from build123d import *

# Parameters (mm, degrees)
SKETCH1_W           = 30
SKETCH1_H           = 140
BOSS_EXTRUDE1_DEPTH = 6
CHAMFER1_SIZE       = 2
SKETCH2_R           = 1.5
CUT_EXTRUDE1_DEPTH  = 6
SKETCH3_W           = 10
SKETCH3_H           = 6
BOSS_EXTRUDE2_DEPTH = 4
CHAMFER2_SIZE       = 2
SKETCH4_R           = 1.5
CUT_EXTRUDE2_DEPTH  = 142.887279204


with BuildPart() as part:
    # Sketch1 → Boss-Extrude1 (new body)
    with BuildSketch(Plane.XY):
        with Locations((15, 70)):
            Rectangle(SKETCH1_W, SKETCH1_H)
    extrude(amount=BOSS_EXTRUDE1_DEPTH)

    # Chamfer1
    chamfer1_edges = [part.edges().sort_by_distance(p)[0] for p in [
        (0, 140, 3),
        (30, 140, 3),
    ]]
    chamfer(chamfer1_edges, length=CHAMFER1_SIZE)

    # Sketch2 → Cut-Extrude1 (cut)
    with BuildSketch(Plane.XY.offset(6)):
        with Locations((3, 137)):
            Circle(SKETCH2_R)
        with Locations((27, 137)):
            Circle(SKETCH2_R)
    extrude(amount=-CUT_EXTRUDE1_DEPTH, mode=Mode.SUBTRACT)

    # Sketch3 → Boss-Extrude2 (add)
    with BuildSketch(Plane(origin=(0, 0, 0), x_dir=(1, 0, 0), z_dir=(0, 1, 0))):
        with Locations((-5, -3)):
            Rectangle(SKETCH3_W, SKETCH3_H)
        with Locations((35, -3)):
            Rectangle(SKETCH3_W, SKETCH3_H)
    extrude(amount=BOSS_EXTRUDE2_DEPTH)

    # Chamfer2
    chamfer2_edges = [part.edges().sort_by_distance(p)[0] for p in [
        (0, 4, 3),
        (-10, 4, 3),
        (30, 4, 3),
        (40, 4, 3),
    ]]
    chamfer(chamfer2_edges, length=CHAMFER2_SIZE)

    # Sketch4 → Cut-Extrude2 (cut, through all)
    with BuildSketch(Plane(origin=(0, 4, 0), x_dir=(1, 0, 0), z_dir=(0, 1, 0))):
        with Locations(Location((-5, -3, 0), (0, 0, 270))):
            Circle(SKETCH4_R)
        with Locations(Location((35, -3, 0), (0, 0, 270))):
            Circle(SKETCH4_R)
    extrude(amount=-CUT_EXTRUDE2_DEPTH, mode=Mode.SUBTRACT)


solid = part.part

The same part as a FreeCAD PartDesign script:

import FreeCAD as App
import Part
import Sketcher

V = App.Vector
Q = App.Units.Quantity


def edges_at(feature, points):
    """Names of the edges that pass closest to the given points."""
    edges = feature.Shape.Edges
    near = lambda p: min(range(len(edges)), key=lambda i: edges[i].distToShape(Part.Vertex(*p))[0])
    return sorted({f"Edge{near(p) + 1}" for p in points})


def add_polygon(sketch, points):
    """Adds a closed chain of lines whose ends are joined by coincident constraints."""
    first, n = sketch.GeometryCount, len(points)
    for a, b in zip(points, points[1:] + points[:1]):
        sketch.addGeometry(Part.LineSegment(App.Vector(*a, 0), App.Vector(*b, 0)), False)
    for i in range(n):
        sketch.addConstraint(Sketcher.Constraint("Coincident", first + i, 2, first + (i + 1) % n, 1))

doc = App.newDocument("Part")
body = doc.addObject("PartDesign::Body", "Body")

# Sketch on XY plane
sketch1 = doc.addObject("Sketcher::SketchObject", "Sketch")
body.addObject(sketch1)
sketch1.AttachmentSupport = (doc.XY_Plane, [""])
sketch1.MapMode = "FlatFace"
add_polygon(sketch1, [(0, 140), (0, 0), (30, 0), (30, 140)])  # lines 0-3
sketch1.addConstraint(Sketcher.Constraint("Vertical", 0))
sketch1.addConstraint(Sketcher.Constraint("Horizontal", 1))
sketch1.addConstraint(Sketcher.Constraint("Vertical", 2))
sketch1.addConstraint(Sketcher.Constraint("Horizontal", 3))
sketch1.addConstraint(Sketcher.Constraint("Coincident", 0, 2, -1, 1))
sketch1.addConstraint(Sketcher.Constraint("DistanceX", 1, 1, 1, 2, Q("30 mm")))
sketch1.addConstraint(Sketcher.Constraint("DistanceY", 0, 2, 0, 1, Q("140 mm")))
pad1 = doc.addObject("PartDesign::Pad", "Pad")
body.addObject(pad1)
pad1.Profile = sketch1
pad1.Length = 6
doc.recompute()

chamfer = doc.addObject("PartDesign::Chamfer", "Chamfer")
body.addObject(chamfer)
chamfer.Base = (pad1, edges_at(pad1, [(0, 140, 3), (30, 140, 3)]))
chamfer.Size = 2

# Sketch on XY plane
sketch2 = doc.addObject("Sketcher::SketchObject", "Sketch001")
body.addObject(sketch2)
sketch2.AttachmentSupport = (doc.XY_Plane, [""])
sketch2.MapMode = "FlatFace"
sketch2.AttachmentOffset = App.Placement(V(0, 0, 6), App.Rotation())
sketch2.addGeometry(Part.Circle(V(3, 137, 0), V(0, 0, 1), 1.5), False)
sketch2.addGeometry(Part.Circle(V(27, 137, 0), V(0, 0, 1), 1.5), False)
sketch2.addConstraint(Sketcher.Constraint("Equal", 0, 1))
sketch2.addConstraint(Sketcher.Constraint("Horizontal", 0, 3, 1, 3))
sketch2.addConstraint(Sketcher.Constraint("Diameter", 0, Q("3 mm")))
sketch2.addConstraint(Sketcher.Constraint("DistanceX", -1, 1, 0, 3, Q("3 mm")))
sketch2.addConstraint(Sketcher.Constraint("DistanceY", -1, 1, 0, 3, Q("137 mm")))
sketch2.addConstraint(Sketcher.Constraint("DistanceX", -1, 1, 1, 3, Q("27 mm")))
pocket1 = doc.addObject("PartDesign::Pocket", "Pocket")
body.addObject(pocket1)
pocket1.Profile = sketch2
pocket1.Length = 6

# Sketch on XZ plane
sketch3 = doc.addObject("Sketcher::SketchObject", "Sketch002")
body.addObject(sketch3)
sketch3.AttachmentSupport = (doc.XZ_Plane, [""])
sketch3.MapMode = "FlatFace"
add_polygon(sketch3, [(-10, 0), (-10, 6), (0, 6), (0, 0)])  # lines 0-3
add_polygon(sketch3, [(30, 0), (30, 6), (40, 6), (40, 0)])  # lines 4-7
sketch3.addConstraint(Sketcher.Constraint("Vertical", 0))
sketch3.addConstraint(Sketcher.Constraint("Horizontal", 1))
sketch3.addConstraint(Sketcher.Constraint("Vertical", 2))
sketch3.addConstraint(Sketcher.Constraint("Horizontal", 3))
sketch3.addConstraint(Sketcher.Constraint("Vertical", 4))
sketch3.addConstraint(Sketcher.Constraint("Horizontal", 5))
sketch3.addConstraint(Sketcher.Constraint("Vertical", 6))
sketch3.addConstraint(Sketcher.Constraint("Horizontal", 7))
sketch3.addConstraint(Sketcher.Constraint("Coincident", 2, 2, -1, 1))
sketch3.addConstraint(Sketcher.Constraint("PointOnObject", 6, 2, -1))
sketch3.addConstraint(Sketcher.Constraint("Horizontal", 1, 2, 4, 2))
sketch3.addConstraint(Sketcher.Constraint("Equal", 3, 5))
sketch3.addConstraint(Sketcher.Constraint("DistanceX", 1, 1, 1, 2, Q("10 mm")))
sketch3.addConstraint(Sketcher.Constraint("DistanceY", 0, 1, 0, 2, Q("6 mm")))
sketch3.addConstraint(Sketcher.Constraint("DistanceX", -1, 1, 4, 2, Q("30 mm")))
pad2 = doc.addObject("PartDesign::Pad", "Pad001")
body.addObject(pad2)
pad2.Profile = sketch3
pad2.Length = 4
pad2.Reversed = True
doc.recompute()

chamfer2 = doc.addObject("PartDesign::Chamfer", "Chamfer001")
body.addObject(chamfer2)
chamfer2.Base = (pad2, edges_at(pad2, [
    (0, 4, 3),
    (-10, 4, 3),
    (30, 4, 3),
    (40, 4, 3),
]))
chamfer2.Size = 2

# Sketch on XZ plane
sketch4 = doc.addObject("Sketcher::SketchObject", "Sketch003")
body.addObject(sketch4)
sketch4.AttachmentSupport = (doc.XZ_Plane, [""])
sketch4.MapMode = "FlatFace"
sketch4.AttachmentOffset = App.Placement(V(0, 0, -4), App.Rotation())
sketch4.addGeometry(Part.Circle(V(-5, 3, 0), V(0, 0, 1), 1.5), False)
sketch4.addGeometry(Part.Circle(V(35, 3, 0), V(0, 0, 1), 1.5), False)
sketch4.addConstraint(Sketcher.Constraint("Equal", 0, 1))
sketch4.addConstraint(Sketcher.Constraint("Horizontal", 0, 3, 1, 3))
sketch4.addConstraint(Sketcher.Constraint("Diameter", 0, Q("3 mm")))
sketch4.addConstraint(Sketcher.Constraint("DistanceX", 0, 3, -1, 1, Q("5 mm")))
sketch4.addConstraint(Sketcher.Constraint("DistanceY", -1, 1, 0, 3, Q("3 mm")))
sketch4.addConstraint(Sketcher.Constraint("DistanceX", -1, 1, 1, 3, Q("35 mm")))
pocket2 = doc.addObject("PartDesign::Pocket", "Pocket001")
body.addObject(pocket2)
pocket2.Profile = sketch4
pocket2.Type = "ThroughAll"
pocket2.Reversed = True

doc.recompute()
